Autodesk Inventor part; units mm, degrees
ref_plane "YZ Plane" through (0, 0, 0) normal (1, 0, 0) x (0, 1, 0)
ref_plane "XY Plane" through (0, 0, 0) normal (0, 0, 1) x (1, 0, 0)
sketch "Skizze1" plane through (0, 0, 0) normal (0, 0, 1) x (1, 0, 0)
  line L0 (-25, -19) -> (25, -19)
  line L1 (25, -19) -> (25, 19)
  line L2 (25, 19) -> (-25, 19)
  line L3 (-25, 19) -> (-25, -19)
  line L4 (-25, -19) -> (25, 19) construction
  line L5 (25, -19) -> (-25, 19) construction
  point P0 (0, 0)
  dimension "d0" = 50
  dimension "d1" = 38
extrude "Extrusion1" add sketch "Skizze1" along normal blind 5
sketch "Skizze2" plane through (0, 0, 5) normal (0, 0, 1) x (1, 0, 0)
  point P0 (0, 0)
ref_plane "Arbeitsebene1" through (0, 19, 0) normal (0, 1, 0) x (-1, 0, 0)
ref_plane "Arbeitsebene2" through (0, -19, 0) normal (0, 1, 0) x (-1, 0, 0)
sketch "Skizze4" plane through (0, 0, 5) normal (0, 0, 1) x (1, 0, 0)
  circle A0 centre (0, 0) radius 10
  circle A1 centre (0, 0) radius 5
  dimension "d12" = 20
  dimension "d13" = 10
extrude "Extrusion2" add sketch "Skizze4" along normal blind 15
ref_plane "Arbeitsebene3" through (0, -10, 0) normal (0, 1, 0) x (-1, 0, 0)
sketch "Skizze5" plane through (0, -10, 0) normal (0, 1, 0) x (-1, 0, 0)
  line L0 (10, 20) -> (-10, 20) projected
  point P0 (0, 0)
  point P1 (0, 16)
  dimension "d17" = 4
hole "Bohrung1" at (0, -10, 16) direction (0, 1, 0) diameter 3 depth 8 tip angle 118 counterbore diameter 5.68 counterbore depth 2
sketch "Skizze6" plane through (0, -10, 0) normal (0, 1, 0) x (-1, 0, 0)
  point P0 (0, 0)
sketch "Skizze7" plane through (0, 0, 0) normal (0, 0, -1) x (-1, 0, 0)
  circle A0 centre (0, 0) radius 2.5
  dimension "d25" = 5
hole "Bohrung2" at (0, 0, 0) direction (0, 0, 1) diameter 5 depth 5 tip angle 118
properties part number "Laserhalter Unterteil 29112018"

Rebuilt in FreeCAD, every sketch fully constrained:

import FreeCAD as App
import Part
import Sketcher
from FreeCAD import Vector

doc = App.newDocument("Part")
body = doc.addObject("PartDesign::Body", "Body")

sketch1 = doc.addObject("Sketcher::SketchObject", "Sketch")
body.addObject(sketch1)
sketch1.AttachmentSupport = (doc.XY_Plane, [""])
sketch1.MapMode = "FlatFace"
sketch1.addGeometry([
    Part.LineSegment(Vector(-25, 19, 0), Vector(-25, -19, 0)),
    Part.LineSegment(Vector(-25, -19, 0), Vector(25, -19, 0)),
    Part.LineSegment(Vector(25, -19, 0), Vector(25, 19, 0)),
    Part.LineSegment(Vector(25, 19, 0), Vector(-25, 19, 0)),
], False)
sketch1.addConstraint([
    Sketcher.Constraint("Coincident", 0, 2, 1, 1),
    Sketcher.Constraint("Coincident", 1, 2, 2, 1),
    Sketcher.Constraint("Coincident", 2, 2, 3, 1),
    Sketcher.Constraint("Coincident", 3, 2, 0, 1),
    Sketcher.Constraint("Vertical", 0),
    Sketcher.Constraint("Horizontal", 1),
    Sketcher.Constraint("Vertical", 2),
    Sketcher.Constraint("Horizontal", 3),
    Sketcher.Constraint("Symmetric", 0, 2, 2, 2, -1, 1),
    Sketcher.Constraint("DistanceX", 1, 1, 1, 2, 50.0),
    Sketcher.Constraint("DistanceY", 0, 2, 0, 1, 38.0),
])
pad1 = doc.addObject("PartDesign::Pad", "Pad")
body.addObject(pad1)
pad1.Profile = sketch1
pad1.Length = 5

sketch2 = doc.addObject("Sketcher::SketchObject", "Sketch001")
body.addObject(sketch2)
sketch2.AttachmentSupport = (doc.XY_Plane, [""])
sketch2.MapMode = "FlatFace"
sketch2.AttachmentOffset = App.Placement(Vector(0, 0, 5), App.Rotation())
sketch2.addGeometry([
    Part.Circle(Vector(0, 0, 0), Vector(0, 0, 1), 10),
    Part.Circle(Vector(0, 0, 0), Vector(0, 0, 1), 5),
], False)
sketch2.addConstraint([
    Sketcher.Constraint("Coincident", 0, 3, -1, 1),
    Sketcher.Constraint("Coincident", 1, 3, -1, 1),
    Sketcher.Constraint("Diameter", 0, 20.0),
    Sketcher.Constraint("Diameter", 1, 10.0),
])
pad2 = doc.addObject("PartDesign::Pad", "Pad001")
body.addObject(pad2)
pad2.Profile = sketch2
pad2.Length = 15

sketch3 = doc.addObject("Sketcher::SketchObject", "Sketch002")
body.addObject(sketch3)
sketch3.AttachmentSupport = (doc.XZ_Plane, [""])
sketch3.MapMode = "FlatFace"
sketch3.AttachmentOffset = App.Placement(Vector(0, 0, 10), App.Rotation())
sketch3.addGeometry(Part.Circle(Vector(0, 16, 0), Vector(0, 0, 1), 1.5), False)
sketch3.addConstraint([
    Sketcher.Constraint("PointOnObject", 0, 3, -2),
    Sketcher.Constraint("Diameter", 0, 3.0),
    Sketcher.Constraint("DistanceY", -1, 1, 0, 3, 16.0),
])
doc.recompute()
hole = doc.addObject("PartDesign::Hole", "Hole")
body.addObject(hole)
hole.Profile = sketch3
hole.ThreadType = "None"
hole.Diameter = 3
hole.DepthType = "Dimension"
hole.Depth = 8
hole.DrillPoint = "Angled"
hole.DrillPointAngle = 118
hole.HoleCutType = "Counterbore"
hole.HoleCutDiameter = 5.68
hole.HoleCutDepth = 2

sketch4 = doc.addObject("Sketcher::SketchObject", "Sketch003")
body.addObject(sketch4)
sketch4.AttachmentSupport = (doc.XY_Plane, [""])
sketch4.MapMode = "FlatFace"
sketch4.addGeometry(Part.Circle(Vector(0, 0, 0), Vector(0, 0, 1), 2.5), False)
sketch4.addConstraint([
    Sketcher.Constraint("Coincident", 0, 3, -1, 1),
    Sketcher.Constraint("Diameter", 0, 5.0),
])
doc.recompute()
hole2 = doc.addObject("PartDesign::Hole", "Hole001")
body.addObject(hole2)
hole2.Profile = sketch4
hole2.ThreadType = "None"
hole2.Diameter = 5
hole2.DepthType = "Dimension"
hole2.Depth = 5
hole2.DrillPoint = "Angled"
hole2.DrillPointAngle = 118
hole2.Reversed = True

doc.recompute()
